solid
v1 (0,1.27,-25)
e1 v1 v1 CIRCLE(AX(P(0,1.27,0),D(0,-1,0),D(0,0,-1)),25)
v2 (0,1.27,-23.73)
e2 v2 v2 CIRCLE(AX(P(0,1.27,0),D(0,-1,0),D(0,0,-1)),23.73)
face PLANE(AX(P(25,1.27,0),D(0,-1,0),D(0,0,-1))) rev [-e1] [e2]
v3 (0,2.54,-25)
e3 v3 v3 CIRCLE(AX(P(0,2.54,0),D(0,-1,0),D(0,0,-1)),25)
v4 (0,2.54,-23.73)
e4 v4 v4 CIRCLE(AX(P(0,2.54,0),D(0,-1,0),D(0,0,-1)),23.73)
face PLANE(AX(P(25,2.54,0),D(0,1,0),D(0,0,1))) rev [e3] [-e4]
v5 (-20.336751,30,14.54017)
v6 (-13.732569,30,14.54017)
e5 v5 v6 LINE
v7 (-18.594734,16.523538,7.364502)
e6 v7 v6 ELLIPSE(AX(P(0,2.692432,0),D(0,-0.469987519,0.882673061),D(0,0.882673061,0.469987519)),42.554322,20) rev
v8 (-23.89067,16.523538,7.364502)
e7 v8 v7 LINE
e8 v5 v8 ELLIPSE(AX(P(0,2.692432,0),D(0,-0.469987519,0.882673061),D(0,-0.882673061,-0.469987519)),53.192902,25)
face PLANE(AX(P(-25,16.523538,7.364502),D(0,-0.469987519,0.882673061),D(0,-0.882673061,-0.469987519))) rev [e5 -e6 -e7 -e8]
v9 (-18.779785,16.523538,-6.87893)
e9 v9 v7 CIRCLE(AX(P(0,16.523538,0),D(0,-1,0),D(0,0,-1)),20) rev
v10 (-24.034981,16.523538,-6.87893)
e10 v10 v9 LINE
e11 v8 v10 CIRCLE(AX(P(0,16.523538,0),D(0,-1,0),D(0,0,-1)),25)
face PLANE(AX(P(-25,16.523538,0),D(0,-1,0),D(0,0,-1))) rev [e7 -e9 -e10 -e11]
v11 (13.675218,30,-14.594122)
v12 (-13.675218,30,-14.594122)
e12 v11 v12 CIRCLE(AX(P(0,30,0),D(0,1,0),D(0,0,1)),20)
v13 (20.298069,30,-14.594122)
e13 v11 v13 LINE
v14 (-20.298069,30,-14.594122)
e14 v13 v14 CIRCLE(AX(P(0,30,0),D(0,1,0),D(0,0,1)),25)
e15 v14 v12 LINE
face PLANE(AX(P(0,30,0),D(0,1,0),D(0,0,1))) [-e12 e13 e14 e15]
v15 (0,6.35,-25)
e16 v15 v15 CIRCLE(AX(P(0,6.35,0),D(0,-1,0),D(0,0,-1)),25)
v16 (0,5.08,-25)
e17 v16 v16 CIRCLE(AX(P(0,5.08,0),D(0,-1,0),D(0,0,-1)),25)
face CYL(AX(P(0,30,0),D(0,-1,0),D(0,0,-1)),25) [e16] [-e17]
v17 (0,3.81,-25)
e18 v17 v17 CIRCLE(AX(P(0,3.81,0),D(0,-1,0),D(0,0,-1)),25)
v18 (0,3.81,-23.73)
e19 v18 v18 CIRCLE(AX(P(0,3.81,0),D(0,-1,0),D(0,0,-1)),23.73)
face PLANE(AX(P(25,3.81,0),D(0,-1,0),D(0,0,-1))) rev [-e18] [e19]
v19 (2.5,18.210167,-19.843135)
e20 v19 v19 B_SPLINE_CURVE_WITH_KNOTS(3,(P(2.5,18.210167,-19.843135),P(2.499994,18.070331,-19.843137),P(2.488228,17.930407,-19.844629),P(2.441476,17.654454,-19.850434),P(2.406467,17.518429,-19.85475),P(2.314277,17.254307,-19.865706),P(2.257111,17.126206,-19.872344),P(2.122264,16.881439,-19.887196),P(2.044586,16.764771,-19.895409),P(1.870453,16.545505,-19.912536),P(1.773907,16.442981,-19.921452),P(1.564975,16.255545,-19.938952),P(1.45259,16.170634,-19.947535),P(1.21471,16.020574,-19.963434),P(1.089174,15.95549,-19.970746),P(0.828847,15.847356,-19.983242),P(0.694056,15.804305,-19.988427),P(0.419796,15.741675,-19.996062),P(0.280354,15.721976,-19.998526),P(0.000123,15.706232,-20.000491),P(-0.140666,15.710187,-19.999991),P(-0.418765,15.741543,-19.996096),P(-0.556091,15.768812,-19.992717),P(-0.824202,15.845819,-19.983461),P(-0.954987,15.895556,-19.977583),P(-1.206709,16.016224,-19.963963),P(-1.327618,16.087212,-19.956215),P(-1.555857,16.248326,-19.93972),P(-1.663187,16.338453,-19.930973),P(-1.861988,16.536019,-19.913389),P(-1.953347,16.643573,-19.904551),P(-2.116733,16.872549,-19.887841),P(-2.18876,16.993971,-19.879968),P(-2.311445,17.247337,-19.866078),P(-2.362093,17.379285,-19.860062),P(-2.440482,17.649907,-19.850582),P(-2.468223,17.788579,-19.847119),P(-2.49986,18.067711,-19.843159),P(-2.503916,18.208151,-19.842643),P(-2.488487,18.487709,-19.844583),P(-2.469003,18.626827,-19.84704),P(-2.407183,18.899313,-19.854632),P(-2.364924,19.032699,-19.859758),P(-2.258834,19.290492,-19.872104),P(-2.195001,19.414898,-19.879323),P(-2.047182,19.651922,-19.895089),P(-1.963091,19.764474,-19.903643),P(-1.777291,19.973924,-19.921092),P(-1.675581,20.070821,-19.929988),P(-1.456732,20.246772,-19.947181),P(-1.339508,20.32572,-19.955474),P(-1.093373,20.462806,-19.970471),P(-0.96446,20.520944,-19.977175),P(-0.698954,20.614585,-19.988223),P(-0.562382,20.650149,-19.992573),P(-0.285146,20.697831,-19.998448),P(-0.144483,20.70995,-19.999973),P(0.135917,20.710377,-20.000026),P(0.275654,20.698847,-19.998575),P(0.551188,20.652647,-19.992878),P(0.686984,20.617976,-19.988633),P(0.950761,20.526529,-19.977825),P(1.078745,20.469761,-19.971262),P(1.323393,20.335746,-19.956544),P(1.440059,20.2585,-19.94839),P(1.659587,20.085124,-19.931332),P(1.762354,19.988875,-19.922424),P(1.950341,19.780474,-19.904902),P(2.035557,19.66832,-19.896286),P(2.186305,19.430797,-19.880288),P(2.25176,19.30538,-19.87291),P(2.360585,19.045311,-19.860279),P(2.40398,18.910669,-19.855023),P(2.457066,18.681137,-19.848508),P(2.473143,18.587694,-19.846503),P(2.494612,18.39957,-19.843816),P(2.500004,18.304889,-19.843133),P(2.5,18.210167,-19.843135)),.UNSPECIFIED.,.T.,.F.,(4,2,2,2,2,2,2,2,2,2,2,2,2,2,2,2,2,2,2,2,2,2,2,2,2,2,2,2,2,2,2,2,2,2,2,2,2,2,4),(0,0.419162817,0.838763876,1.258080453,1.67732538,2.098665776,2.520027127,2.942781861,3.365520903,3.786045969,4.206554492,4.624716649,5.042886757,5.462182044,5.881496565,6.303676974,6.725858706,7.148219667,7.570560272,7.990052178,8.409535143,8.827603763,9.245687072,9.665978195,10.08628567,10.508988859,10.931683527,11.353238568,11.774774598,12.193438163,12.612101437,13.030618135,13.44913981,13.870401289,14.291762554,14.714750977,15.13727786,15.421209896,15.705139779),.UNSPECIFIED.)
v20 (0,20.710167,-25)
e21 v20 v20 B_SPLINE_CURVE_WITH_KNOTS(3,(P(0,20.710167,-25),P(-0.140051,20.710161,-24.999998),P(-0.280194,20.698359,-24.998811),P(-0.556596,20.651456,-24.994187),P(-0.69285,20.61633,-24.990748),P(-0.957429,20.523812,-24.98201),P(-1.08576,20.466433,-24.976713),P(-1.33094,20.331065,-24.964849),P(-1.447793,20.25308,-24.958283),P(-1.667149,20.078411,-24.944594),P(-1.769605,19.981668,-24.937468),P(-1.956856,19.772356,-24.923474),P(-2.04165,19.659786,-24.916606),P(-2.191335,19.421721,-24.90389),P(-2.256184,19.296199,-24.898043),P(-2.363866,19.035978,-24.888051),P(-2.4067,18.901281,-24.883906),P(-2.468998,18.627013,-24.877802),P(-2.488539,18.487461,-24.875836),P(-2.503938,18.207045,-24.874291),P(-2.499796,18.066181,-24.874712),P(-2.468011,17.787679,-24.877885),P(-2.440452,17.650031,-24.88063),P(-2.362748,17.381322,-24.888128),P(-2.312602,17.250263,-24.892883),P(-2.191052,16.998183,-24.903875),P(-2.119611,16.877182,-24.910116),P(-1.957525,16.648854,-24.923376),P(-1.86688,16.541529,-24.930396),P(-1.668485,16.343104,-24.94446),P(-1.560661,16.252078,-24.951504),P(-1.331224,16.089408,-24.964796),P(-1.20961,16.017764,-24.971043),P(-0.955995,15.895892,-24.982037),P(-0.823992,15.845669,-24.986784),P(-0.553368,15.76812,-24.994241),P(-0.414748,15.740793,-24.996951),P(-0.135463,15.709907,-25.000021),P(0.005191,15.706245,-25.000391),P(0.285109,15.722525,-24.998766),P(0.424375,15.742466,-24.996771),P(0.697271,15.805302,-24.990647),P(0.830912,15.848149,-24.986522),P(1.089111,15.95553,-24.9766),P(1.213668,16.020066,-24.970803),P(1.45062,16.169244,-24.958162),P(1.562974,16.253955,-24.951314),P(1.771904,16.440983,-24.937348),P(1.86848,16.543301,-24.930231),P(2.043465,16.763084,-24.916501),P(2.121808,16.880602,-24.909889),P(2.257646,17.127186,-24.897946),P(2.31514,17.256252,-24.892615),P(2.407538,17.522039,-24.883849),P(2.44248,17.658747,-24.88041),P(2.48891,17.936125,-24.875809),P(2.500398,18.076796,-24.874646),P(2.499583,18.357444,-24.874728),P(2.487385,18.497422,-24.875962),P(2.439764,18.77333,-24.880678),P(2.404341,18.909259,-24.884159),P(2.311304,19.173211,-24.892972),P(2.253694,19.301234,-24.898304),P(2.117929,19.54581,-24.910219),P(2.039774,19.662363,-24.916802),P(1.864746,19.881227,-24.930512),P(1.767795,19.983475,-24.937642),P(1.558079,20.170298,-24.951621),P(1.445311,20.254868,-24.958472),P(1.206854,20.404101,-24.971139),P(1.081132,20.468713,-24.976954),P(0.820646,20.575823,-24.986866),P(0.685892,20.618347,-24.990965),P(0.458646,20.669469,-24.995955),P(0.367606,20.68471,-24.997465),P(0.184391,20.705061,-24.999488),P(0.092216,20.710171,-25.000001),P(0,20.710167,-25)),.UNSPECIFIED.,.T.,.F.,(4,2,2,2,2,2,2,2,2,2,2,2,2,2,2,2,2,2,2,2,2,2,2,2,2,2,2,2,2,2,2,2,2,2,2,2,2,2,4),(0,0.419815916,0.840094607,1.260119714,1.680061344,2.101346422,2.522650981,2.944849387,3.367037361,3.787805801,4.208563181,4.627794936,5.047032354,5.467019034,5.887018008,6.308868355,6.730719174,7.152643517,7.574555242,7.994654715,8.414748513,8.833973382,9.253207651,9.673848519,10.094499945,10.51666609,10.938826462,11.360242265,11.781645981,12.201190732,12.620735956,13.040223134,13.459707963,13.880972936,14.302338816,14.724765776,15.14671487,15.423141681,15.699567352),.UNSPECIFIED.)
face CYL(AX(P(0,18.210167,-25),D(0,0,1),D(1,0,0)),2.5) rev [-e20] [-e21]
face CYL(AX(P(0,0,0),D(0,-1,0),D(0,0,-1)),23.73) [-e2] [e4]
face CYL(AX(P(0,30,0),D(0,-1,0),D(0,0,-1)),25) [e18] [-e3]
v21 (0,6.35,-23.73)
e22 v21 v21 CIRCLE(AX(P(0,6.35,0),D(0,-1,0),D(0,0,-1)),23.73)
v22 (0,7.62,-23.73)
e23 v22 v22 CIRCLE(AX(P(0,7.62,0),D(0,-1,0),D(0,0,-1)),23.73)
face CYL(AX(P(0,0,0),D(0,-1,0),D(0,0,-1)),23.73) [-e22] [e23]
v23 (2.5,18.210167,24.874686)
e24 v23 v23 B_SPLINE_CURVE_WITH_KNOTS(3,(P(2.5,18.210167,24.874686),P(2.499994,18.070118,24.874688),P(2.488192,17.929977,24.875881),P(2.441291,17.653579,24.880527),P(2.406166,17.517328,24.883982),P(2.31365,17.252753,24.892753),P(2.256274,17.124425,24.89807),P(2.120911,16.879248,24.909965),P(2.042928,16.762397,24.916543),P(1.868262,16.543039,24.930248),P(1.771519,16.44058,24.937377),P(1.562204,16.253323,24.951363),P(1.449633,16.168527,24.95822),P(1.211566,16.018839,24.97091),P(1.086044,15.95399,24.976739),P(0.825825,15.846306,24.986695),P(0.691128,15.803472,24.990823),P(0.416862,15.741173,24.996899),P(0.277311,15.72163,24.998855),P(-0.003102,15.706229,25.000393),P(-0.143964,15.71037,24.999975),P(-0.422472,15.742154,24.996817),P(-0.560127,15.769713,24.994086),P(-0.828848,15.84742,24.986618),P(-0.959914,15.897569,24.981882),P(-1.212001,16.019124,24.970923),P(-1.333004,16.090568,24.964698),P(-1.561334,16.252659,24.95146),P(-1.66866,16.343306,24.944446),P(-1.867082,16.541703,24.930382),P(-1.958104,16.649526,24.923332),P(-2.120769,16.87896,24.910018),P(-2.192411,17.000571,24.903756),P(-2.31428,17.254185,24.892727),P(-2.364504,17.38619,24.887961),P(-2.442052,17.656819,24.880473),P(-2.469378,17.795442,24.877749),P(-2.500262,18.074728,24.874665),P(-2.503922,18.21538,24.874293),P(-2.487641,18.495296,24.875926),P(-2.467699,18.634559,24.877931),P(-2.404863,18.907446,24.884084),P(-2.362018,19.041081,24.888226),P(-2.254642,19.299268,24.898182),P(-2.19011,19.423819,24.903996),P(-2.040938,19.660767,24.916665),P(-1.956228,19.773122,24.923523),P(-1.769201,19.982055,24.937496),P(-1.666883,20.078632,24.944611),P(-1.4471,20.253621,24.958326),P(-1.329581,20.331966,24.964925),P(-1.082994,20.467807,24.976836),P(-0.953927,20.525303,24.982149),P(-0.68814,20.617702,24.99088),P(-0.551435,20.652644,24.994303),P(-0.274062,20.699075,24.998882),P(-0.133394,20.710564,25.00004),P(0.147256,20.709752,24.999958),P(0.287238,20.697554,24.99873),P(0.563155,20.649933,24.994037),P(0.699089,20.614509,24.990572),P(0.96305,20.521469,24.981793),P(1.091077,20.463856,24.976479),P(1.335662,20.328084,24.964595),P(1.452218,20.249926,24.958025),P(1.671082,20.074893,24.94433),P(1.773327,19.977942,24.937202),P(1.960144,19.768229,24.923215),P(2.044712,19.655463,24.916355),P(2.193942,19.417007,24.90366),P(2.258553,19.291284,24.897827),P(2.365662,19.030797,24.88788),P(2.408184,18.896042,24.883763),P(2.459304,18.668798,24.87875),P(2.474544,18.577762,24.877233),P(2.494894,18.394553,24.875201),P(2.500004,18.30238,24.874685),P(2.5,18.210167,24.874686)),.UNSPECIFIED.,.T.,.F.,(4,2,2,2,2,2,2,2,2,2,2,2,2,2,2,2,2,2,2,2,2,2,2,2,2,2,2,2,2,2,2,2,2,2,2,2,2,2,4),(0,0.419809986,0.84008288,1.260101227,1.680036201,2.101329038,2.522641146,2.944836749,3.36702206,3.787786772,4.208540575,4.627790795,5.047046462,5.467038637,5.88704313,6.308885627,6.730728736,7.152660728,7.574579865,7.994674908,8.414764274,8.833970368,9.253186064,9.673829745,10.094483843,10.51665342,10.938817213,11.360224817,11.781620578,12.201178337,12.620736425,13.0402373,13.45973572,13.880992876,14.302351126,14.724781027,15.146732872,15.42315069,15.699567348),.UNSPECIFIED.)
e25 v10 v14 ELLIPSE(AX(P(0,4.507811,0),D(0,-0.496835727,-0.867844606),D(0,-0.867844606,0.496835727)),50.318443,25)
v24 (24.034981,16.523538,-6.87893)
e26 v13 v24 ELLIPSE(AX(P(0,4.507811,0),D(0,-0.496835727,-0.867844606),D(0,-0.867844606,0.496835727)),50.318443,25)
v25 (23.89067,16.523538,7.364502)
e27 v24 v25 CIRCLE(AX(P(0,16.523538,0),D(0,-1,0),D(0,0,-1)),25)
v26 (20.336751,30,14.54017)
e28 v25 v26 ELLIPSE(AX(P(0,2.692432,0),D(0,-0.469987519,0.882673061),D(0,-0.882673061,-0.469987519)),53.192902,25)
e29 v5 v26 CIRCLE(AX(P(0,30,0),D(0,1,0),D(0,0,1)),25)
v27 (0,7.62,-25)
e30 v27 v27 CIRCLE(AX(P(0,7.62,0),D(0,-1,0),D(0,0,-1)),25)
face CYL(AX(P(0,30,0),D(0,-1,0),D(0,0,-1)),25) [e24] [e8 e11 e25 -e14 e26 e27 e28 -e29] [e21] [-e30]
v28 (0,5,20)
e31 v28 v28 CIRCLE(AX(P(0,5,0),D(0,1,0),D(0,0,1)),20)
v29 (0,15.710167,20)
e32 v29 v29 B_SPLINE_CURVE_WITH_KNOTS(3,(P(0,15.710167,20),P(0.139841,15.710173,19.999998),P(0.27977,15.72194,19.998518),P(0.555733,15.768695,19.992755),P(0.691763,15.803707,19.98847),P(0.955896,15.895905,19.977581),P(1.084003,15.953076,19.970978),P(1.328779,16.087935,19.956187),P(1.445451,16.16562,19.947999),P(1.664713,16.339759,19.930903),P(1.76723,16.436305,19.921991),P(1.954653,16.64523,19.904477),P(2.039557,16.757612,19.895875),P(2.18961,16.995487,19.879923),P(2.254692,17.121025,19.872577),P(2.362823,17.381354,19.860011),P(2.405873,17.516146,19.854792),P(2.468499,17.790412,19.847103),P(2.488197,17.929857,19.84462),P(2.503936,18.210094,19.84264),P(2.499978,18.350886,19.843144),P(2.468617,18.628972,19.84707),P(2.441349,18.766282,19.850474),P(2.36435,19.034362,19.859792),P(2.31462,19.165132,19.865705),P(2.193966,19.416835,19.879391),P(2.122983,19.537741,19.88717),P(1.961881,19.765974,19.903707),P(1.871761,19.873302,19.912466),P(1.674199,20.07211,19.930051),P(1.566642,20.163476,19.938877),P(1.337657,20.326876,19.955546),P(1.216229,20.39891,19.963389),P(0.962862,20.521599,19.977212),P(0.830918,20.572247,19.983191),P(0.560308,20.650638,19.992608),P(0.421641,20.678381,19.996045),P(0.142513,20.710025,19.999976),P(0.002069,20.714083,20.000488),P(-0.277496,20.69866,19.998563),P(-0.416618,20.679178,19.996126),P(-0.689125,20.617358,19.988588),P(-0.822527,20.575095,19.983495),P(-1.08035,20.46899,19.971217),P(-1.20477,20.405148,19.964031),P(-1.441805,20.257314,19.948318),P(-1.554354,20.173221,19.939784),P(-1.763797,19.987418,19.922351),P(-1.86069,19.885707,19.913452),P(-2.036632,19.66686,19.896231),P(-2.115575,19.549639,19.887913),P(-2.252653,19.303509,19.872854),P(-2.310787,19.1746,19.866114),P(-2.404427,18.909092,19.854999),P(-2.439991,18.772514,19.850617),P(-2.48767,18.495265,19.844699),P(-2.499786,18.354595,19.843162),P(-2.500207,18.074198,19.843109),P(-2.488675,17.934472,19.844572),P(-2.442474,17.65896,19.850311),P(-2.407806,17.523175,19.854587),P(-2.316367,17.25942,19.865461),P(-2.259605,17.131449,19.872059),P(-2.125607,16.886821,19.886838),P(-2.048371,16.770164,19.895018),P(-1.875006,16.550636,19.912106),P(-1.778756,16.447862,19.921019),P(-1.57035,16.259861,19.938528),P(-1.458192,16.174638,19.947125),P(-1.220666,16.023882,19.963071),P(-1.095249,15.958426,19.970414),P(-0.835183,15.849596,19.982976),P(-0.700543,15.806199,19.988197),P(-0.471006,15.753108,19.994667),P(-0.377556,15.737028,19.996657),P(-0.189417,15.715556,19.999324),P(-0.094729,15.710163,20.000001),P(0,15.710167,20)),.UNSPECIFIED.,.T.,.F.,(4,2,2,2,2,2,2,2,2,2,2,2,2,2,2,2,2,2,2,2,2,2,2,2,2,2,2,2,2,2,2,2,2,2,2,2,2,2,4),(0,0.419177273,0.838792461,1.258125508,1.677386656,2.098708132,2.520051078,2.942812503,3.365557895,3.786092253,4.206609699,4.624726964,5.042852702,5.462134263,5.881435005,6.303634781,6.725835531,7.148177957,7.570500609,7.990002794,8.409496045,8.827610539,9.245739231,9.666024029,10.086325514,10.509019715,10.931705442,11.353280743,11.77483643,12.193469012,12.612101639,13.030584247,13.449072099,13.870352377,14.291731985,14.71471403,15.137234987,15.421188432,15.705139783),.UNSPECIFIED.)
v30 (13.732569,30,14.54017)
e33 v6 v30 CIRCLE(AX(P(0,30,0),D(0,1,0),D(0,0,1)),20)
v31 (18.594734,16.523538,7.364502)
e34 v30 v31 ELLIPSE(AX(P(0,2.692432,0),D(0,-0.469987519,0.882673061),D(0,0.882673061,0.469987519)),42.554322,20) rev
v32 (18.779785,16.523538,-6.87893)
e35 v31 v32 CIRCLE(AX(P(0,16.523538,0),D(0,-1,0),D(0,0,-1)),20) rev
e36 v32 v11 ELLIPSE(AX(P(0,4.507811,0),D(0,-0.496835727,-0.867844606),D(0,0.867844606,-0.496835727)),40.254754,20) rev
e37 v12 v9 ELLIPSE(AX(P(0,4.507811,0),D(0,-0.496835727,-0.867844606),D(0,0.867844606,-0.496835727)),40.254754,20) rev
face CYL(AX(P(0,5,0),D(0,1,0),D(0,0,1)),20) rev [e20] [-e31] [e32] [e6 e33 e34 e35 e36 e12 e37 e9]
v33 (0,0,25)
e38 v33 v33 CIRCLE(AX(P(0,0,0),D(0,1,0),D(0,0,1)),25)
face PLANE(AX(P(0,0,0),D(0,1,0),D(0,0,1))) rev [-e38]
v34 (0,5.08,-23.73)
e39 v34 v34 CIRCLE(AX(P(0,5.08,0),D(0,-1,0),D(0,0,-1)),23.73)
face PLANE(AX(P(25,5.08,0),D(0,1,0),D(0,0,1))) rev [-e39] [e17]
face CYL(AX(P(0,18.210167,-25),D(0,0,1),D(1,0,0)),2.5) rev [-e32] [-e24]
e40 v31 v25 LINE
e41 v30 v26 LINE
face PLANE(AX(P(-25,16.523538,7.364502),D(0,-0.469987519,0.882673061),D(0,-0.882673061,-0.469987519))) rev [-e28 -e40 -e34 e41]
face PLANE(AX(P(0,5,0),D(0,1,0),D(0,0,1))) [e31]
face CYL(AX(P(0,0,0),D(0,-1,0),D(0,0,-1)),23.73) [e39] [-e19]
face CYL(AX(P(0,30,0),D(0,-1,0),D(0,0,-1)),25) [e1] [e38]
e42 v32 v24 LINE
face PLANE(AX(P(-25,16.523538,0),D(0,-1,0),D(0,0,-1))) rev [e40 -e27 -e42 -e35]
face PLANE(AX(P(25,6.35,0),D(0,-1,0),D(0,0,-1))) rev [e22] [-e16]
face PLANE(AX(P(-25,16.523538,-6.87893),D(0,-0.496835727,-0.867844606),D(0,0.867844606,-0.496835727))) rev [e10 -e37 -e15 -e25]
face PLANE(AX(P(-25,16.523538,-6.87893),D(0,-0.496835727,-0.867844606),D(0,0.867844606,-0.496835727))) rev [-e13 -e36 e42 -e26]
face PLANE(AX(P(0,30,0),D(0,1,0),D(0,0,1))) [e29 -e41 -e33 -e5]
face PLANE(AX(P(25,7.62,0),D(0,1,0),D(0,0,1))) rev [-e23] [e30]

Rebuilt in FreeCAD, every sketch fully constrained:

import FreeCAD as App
import Part
import Sketcher
from FreeCAD import Vector
Q = App.Units.Quantity

doc = App.newDocument("Part")
body = doc.addObject("PartDesign::Body", "Body")

sketch1 = body.newObject("Sketcher::SketchObject", "Sketch")
sketch1.AttachmentSupport = (doc.getObject("XZ_Plane"), [""])
sketch1.MapMode = "FlatFace"
sketch1.addGeometry(Part.Circle(Vector(0, 0, 0), Vector(0, 0, 1), 25), False)
sketch1.addConstraint(Sketcher.Constraint("Coincident", 0, 3, -1, 1))
sketch1.addConstraint(Sketcher.Constraint("Diameter", 0, Q("50 mm")))
pad1 = body.newObject("PartDesign::Pad", "Pad")
pad1.Profile = sketch1
pad1.Length = 30
pad1.Reversed = True

sketch2 = body.newObject("Sketcher::SketchObject", "Sketch001")
sketch2.AttachmentSupport = (doc.getObject("XY_Plane"), [""])
sketch2.MapMode = "FlatFace"
sketch2.addGeometry(Part.LineSegment(Vector(23.73, 2.54, 0), Vector(23.73, 1.27, 0)), False)
sketch2.addGeometry(Part.LineSegment(Vector(23.73, 1.27, 0), Vector(25, 1.27, 0)), False)
sketch2.addGeometry(Part.LineSegment(Vector(25, 1.27, 0), Vector(25, 2.54, 0)), False)
sketch2.addGeometry(Part.LineSegment(Vector(25, 2.54, 0), Vector(23.73, 2.54, 0)), False)
sketch2.addGeometry(Part.LineSegment(Vector(23.73, 5.08, 0), Vector(23.73, 3.81, 0)), False)
sketch2.addGeometry(Part.LineSegment(Vector(23.73, 3.81, 0), Vector(25, 3.81, 0)), False)
sketch2.addGeometry(Part.LineSegment(Vector(25, 3.81, 0), Vector(25, 5.08, 0)), False)
sketch2.addGeometry(Part.LineSegment(Vector(25, 5.08, 0), Vector(23.73, 5.08, 0)), False)
sketch2.addGeometry(Part.LineSegment(Vector(23.73, 7.62, 0), Vector(23.73, 6.35, 0)), False)
sketch2.addGeometry(Part.LineSegment(Vector(23.73, 6.35, 0), Vector(25, 6.35, 0)), False)
sketch2.addGeometry(Part.LineSegment(Vector(25, 6.35, 0), Vector(25, 7.62, 0)), False)
sketch2.addGeometry(Part.LineSegment(Vector(25, 7.62, 0), Vector(23.73, 7.62, 0)), False)
sketch2.addConstraint(Sketcher.Constraint("Coincident", 0, 2, 1, 1))
sketch2.addConstraint(Sketcher.Constraint("Coincident", 1, 2, 2, 1))
sketch2.addConstraint(Sketcher.Constraint("Coincident", 2, 2, 3, 1))
sketch2.addConstraint(Sketcher.Constraint("Coincident", 3, 2, 0, 1))
sketch2.addConstraint(Sketcher.Constraint("Coincident", 4, 2, 5, 1))
sketch2.addConstraint(Sketcher.Constraint("Coincident", 5, 2, 6, 1))
sketch2.addConstraint(Sketcher.Constraint("Coincident", 6, 2, 7, 1))
sketch2.addConstraint(Sketcher.Constraint("Coincident", 7, 2, 4, 1))
sketch2.addConstraint(Sketcher.Constraint("Coincident", 8, 2, 9, 1))
sketch2.addConstraint(Sketcher.Constraint("Coincident", 9, 2, 10, 1))
sketch2.addConstraint(Sketcher.Constraint("Coincident", 10, 2, 11, 1))
sketch2.addConstraint(Sketcher.Constraint("Coincident", 11, 2, 8, 1))
sketch2.addConstraint(Sketcher.Constraint("Vertical", 0))
sketch2.addConstraint(Sketcher.Constraint("Horizontal", 1))
sketch2.addConstraint(Sketcher.Constraint("Vertical", 2))
sketch2.addConstraint(Sketcher.Constraint("Horizontal", 3))
sketch2.addConstraint(Sketcher.Constraint("Vertical", 4))
sketch2.addConstraint(Sketcher.Constraint("Horizontal", 5))
sketch2.addConstraint(Sketcher.Constraint("Vertical", 6))
sketch2.addConstraint(Sketcher.Constraint("Horizontal", 7))
sketch2.addConstraint(Sketcher.Constraint("Vertical", 8))
sketch2.addConstraint(Sketcher.Constraint("Horizontal", 9))
sketch2.addConstraint(Sketcher.Constraint("Vertical", 10))
sketch2.addConstraint(Sketcher.Constraint("Horizontal", 11))
sketch2.addConstraint(Sketcher.Constraint("Vertical", 3, 2, 4, 2))
sketch2.addConstraint(Sketcher.Constraint("Vertical", 2, 2, 5, 2))
sketch2.addConstraint(Sketcher.Constraint("Vertical", 7, 2, 8, 2))
sketch2.addConstraint(Sketcher.Constraint("Vertical", 6, 2, 9, 2))
sketch2.addConstraint(Sketcher.Constraint("Equal", 11, 0))
sketch2.addConstraint(Sketcher.Constraint("Equal", 2, 4))
sketch2.addConstraint(Sketcher.Constraint("Equal", 6, 8))
sketch2.addConstraint(Sketcher.Constraint("DistanceX", -1, 1, 1, 2, Q("25 mm")))
sketch2.addConstraint(Sketcher.Constraint("DistanceX", 1, 1, 1, 2, Q("1.27 mm")))
sketch2.addConstraint(Sketcher.Constraint("DistanceY", -1, 1, 0, 2, Q("1.27 mm")))
sketch2.addConstraint(Sketcher.Constraint("DistanceY", -1, 1, 4, 2, Q("3.81 mm")))
sketch2.addConstraint(Sketcher.Constraint("DistanceY", -1, 1, 8, 2, Q("6.35 mm")))
groove = body.newObject("PartDesign::Groove", "Groove")
groove.Profile = sketch2
groove.ReferenceAxis = (sketch2, ["V_Axis"])
groove.Angle = 360

sketch3 = body.newObject("Sketcher::SketchObject", "Sketch002")
sketch3.AttachmentSupport = (doc.getObject("XZ_Plane"), [""])
sketch3.MapMode = "FlatFace"
sketch3.AttachmentOffset = App.Placement(Vector(0, 0, -30), App.Rotation())
sketch3.addGeometry(Part.Circle(Vector(0, 0, 0), Vector(0, 0, 1), 20), False)
sketch3.addConstraint(Sketcher.Constraint("Coincident", 0, 3, -1, 1))
sketch3.addConstraint(Sketcher.Constraint("Diameter", 0, Q("40 mm")))
pocket1 = body.newObject("PartDesign::Pocket", "Pocket")
pocket1.Profile = sketch3
pocket1.Length = 25
pocket1.Reversed = True

sketch4 = body.newObject("Sketcher::SketchObject", "Sketch003")
sketch4.AttachmentSupport = (doc.getObject("YZ_Plane"), [""])
sketch4.MapMode = "FlatFace"
sketch4.addGeometry(Part.LineSegment(Vector(16.523538, -6.87893, 0), Vector(30, -14.594122, 0)), False)
sketch4.addGeometry(Part.LineSegment(Vector(30, -14.594122, 0), Vector(30, 14.54017, 0)), False)
sketch4.addGeometry(Part.LineSegment(Vector(30, 14.54017, 0), Vector(16.523538, 7.364502, 0)), False)
sketch4.addGeometry(Part.LineSegment(Vector(16.523538, 7.364502, 0), Vector(16.523538, -6.87893, 0)), False)
sketch4.addConstraint(Sketcher.Constraint("Coincident", 0, 2, 1, 1))
sketch4.addConstraint(Sketcher.Constraint("Coincident", 1, 2, 2, 1))
sketch4.addConstraint(Sketcher.Constraint("Coincident", 2, 2, 3, 1))
sketch4.addConstraint(Sketcher.Constraint("Coincident", 3, 2, 0, 1))
sketch4.addConstraint(Sketcher.Constraint("Vertical", 1))
sketch4.addConstraint(Sketcher.Constraint("Vertical", 3))
sketch4.addConstraint(Sketcher.Constraint("DistanceX", -1, 1, 0, 2, Q("30 mm")))
sketch4.addConstraint(Sketcher.Constraint("DistanceY", 3, 2, 3, 1, Q("14.243432 mm")))
sketch4.addConstraint(Sketcher.Constraint("DistanceY", -1, 1, 2, 2, Q("7.364502 mm")))
sketch4.addConstraint(Sketcher.Constraint("DistanceY", 3, 2, 1, 2, Q("21.4191 mm")))
sketch4.addConstraint(Sketcher.Constraint("Distance", 0, Q("15.528658 mm")))
sketch4.addConstraint(Sketcher.Constraint("DistanceY", 1, 1, 1, 2, Q("29.134292 mm")))
pocket2 = body.newObject("PartDesign::Pocket", "Pocket001")
pocket2.Profile = sketch4
pocket2.Type = "ThroughAll"
pocket2.Midplane = True

sketch5 = body.newObject("Sketcher::SketchObject", "Sketch004")
sketch5.AttachmentSupport = (doc.getObject("XY_Plane"), [""])
sketch5.MapMode = "FlatFace"
sketch5.addGeometry(Part.Circle(Vector(0, 18.210167, 0), Vector(0, 0, 1), 2.5), False)
sketch5.addConstraint(Sketcher.Constraint("PointOnObject", 0, 3, -2))
sketch5.addConstraint(Sketcher.Constraint("Diameter", 0, Q("5 mm")))
sketch5.addConstraint(Sketcher.Constraint("DistanceY", -1, 1, 0, 3, Q("18.210167 mm")))
pocket3 = body.newObject("PartDesign::Pocket", "Pocket002")
pocket3.Profile = sketch5
pocket3.Type = "ThroughAll"
pocket3.Midplane = True

doc.recompute()
